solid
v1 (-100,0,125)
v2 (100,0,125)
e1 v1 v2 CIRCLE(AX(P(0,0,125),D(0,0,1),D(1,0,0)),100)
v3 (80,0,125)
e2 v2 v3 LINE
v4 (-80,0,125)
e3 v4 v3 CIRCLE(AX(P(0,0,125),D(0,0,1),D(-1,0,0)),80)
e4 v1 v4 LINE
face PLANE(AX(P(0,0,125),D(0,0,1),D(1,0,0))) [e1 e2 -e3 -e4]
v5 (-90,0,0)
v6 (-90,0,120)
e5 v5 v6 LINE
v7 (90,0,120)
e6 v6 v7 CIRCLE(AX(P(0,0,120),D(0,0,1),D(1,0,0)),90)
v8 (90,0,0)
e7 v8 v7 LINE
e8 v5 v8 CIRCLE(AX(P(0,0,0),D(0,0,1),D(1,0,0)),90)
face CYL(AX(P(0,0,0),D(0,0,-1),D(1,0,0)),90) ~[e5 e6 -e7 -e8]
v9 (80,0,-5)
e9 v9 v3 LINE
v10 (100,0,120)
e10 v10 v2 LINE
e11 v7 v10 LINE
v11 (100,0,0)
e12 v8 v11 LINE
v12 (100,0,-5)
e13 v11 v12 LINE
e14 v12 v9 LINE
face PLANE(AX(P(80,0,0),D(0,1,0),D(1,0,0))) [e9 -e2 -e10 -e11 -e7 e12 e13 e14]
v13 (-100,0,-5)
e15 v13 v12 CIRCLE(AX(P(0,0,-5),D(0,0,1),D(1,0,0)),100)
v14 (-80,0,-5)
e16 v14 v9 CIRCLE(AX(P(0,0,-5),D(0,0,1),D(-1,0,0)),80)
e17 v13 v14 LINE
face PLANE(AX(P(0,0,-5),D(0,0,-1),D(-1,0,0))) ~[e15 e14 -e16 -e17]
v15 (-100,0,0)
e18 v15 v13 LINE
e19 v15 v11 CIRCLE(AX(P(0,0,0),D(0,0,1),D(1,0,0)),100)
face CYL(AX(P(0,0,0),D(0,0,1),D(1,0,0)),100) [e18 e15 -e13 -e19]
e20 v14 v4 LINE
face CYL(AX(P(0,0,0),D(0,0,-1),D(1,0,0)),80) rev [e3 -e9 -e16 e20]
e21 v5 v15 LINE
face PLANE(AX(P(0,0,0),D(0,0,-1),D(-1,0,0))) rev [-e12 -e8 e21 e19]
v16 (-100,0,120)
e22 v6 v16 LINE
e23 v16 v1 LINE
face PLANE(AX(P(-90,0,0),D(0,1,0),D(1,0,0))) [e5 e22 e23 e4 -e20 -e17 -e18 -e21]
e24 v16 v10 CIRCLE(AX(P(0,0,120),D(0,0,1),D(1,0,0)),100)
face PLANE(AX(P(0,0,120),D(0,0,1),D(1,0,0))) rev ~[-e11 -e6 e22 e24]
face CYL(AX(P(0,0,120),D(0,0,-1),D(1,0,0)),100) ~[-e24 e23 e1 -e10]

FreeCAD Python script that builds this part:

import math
import FreeCAD as App
import Part
import Sketcher

doc = App.newDocument("Part")
body = doc.addObject("PartDesign::Body", "Body")

sketch1 = doc.addObject("Sketcher::SketchObject", "Sketch")
body.addObject(sketch1)
sketch1.AttachmentSupport = (doc.XY_Plane, [""])
sketch1.MapMode = "FlatFace"
sketch1.addGeometry(Part.LineSegment(App.Vector(90, 0, 0), App.Vector(80, 0, 0)), False)
sketch1.addGeometry(Part.ArcOfCircle(Part.Circle(App.Vector(0, 0, 0), App.Vector(0, 0, 1), 80), math.radians(180), math.radians(360)), False)
sketch1.addGeometry(Part.LineSegment(App.Vector(-80, 0, 0), App.Vector(-90, 0, 0)), False)
sketch1.addGeometry(Part.ArcOfCircle(Part.Circle(App.Vector(0, 0, 0), App.Vector(0, 0, 1), 90), math.radians(180), math.radians(360)), False)
sketch1.addConstraint(Sketcher.Constraint("Coincident", 0, 2, 1, 2))
sketch1.addConstraint(Sketcher.Constraint("Coincident", 1, 1, 2, 1))
sketch1.addConstraint(Sketcher.Constraint("Coincident", 2, 2, 3, 1))
sketch1.addConstraint(Sketcher.Constraint("Coincident", 3, 2, 0, 1))
sketch1.addConstraint(Sketcher.Constraint("Horizontal", 0))
sketch1.addConstraint(Sketcher.Constraint("Horizontal", 2))
sketch1.addConstraint(Sketcher.Constraint("Coincident", 1, 3, -1, 1))
sketch1.addConstraint(Sketcher.Constraint("Coincident", 3, 3, -1, 1))
sketch1.addConstraint(Sketcher.Constraint("PointOnObject", 0, 2, -1))
sketch1.addConstraint(Sketcher.Constraint("PointOnObject", 1, 1, -1))
sketch1.addConstraint(Sketcher.Constraint("Radius", 1, 80.0))
sketch1.addConstraint(Sketcher.Constraint("Radius", 3, 90.0))
pad1 = doc.addObject("PartDesign::Pad", "Pad")
body.addObject(pad1)
pad1.Profile = sketch1
pad1.Length = 120

sketch2 = doc.addObject("Sketcher::SketchObject", "Sketch001")
body.addObject(sketch2)
sketch2.AttachmentSupport = (doc.XY_Plane, [""])
sketch2.MapMode = "FlatFace"
sketch2.AttachmentOffset = App.Placement(App.Vector(0, 0, 120), App.Rotation())
sketch2.addGeometry(Part.LineSegment(App.Vector(-80, 0, 0), App.Vector(-100, 0, 0)), False)
sketch2.addGeometry(Part.ArcOfCircle(Part.Circle(App.Vector(0, 0, 0), App.Vector(0, 0, 1), 100), math.radians(180), math.radians(360)), False)
sketch2.addGeometry(Part.LineSegment(App.Vector(100, 0, 0), App.Vector(80, 0, 0)), False)
sketch2.addGeometry(Part.ArcOfCircle(Part.Circle(App.Vector(0, 0, 0), App.Vector(0, 0, 1), 80), math.radians(180), math.radians(360)), False)
sketch2.addConstraint(Sketcher.Constraint("Coincident", 0, 2, 1, 1))
sketch2.addConstraint(Sketcher.Constraint("Coincident", 1, 2, 2, 1))
sketch2.addConstraint(Sketcher.Constraint("Coincident", 2, 2, 3, 2))
sketch2.addConstraint(Sketcher.Constraint("Coincident", 3, 1, 0, 1))
sketch2.addConstraint(Sketcher.Constraint("Horizontal", 0))
sketch2.addConstraint(Sketcher.Constraint("Horizontal", 2))
sketch2.addConstraint(Sketcher.Constraint("Coincident", 1, 3, -1, 1))
sketch2.addConstraint(Sketcher.Constraint("Coincident", 3, 3, -1, 1))
sketch2.addConstraint(Sketcher.Constraint("PointOnObject", 0, 2, -1))
sketch2.addConstraint(Sketcher.Constraint("PointOnObject", 1, 2, -1))
sketch2.addConstraint(Sketcher.Constraint("Radius", 1, 100.0))
sketch2.addConstraint(Sketcher.Constraint("Radius", 3, 80.0))
pad2 = doc.addObject("PartDesign::Pad", "Pad001")
body.addObject(pad2)
pad2.Profile = sketch2
pad2.Length = 5
doc.recompute()

datumplane = doc.addObject("PartDesign::Plane", "DatumPlane")
body.addObject(datumplane)
datumplane.AttachmentSupport = (doc.XY_Plane, [""])
datumplane.MapMode = "FlatFace"
datumplane.AttachmentOffset = App.Placement(App.Vector(0, 0, 60), App.Rotation())
mirrored = doc.addObject("PartDesign::Mirrored", "Mirrored")
body.addObject(mirrored)
mirrored.Originals = [pad2]
mirrored.MirrorPlane = (datumplane, [""])
body.Tip = mirrored

doc.recompute()
